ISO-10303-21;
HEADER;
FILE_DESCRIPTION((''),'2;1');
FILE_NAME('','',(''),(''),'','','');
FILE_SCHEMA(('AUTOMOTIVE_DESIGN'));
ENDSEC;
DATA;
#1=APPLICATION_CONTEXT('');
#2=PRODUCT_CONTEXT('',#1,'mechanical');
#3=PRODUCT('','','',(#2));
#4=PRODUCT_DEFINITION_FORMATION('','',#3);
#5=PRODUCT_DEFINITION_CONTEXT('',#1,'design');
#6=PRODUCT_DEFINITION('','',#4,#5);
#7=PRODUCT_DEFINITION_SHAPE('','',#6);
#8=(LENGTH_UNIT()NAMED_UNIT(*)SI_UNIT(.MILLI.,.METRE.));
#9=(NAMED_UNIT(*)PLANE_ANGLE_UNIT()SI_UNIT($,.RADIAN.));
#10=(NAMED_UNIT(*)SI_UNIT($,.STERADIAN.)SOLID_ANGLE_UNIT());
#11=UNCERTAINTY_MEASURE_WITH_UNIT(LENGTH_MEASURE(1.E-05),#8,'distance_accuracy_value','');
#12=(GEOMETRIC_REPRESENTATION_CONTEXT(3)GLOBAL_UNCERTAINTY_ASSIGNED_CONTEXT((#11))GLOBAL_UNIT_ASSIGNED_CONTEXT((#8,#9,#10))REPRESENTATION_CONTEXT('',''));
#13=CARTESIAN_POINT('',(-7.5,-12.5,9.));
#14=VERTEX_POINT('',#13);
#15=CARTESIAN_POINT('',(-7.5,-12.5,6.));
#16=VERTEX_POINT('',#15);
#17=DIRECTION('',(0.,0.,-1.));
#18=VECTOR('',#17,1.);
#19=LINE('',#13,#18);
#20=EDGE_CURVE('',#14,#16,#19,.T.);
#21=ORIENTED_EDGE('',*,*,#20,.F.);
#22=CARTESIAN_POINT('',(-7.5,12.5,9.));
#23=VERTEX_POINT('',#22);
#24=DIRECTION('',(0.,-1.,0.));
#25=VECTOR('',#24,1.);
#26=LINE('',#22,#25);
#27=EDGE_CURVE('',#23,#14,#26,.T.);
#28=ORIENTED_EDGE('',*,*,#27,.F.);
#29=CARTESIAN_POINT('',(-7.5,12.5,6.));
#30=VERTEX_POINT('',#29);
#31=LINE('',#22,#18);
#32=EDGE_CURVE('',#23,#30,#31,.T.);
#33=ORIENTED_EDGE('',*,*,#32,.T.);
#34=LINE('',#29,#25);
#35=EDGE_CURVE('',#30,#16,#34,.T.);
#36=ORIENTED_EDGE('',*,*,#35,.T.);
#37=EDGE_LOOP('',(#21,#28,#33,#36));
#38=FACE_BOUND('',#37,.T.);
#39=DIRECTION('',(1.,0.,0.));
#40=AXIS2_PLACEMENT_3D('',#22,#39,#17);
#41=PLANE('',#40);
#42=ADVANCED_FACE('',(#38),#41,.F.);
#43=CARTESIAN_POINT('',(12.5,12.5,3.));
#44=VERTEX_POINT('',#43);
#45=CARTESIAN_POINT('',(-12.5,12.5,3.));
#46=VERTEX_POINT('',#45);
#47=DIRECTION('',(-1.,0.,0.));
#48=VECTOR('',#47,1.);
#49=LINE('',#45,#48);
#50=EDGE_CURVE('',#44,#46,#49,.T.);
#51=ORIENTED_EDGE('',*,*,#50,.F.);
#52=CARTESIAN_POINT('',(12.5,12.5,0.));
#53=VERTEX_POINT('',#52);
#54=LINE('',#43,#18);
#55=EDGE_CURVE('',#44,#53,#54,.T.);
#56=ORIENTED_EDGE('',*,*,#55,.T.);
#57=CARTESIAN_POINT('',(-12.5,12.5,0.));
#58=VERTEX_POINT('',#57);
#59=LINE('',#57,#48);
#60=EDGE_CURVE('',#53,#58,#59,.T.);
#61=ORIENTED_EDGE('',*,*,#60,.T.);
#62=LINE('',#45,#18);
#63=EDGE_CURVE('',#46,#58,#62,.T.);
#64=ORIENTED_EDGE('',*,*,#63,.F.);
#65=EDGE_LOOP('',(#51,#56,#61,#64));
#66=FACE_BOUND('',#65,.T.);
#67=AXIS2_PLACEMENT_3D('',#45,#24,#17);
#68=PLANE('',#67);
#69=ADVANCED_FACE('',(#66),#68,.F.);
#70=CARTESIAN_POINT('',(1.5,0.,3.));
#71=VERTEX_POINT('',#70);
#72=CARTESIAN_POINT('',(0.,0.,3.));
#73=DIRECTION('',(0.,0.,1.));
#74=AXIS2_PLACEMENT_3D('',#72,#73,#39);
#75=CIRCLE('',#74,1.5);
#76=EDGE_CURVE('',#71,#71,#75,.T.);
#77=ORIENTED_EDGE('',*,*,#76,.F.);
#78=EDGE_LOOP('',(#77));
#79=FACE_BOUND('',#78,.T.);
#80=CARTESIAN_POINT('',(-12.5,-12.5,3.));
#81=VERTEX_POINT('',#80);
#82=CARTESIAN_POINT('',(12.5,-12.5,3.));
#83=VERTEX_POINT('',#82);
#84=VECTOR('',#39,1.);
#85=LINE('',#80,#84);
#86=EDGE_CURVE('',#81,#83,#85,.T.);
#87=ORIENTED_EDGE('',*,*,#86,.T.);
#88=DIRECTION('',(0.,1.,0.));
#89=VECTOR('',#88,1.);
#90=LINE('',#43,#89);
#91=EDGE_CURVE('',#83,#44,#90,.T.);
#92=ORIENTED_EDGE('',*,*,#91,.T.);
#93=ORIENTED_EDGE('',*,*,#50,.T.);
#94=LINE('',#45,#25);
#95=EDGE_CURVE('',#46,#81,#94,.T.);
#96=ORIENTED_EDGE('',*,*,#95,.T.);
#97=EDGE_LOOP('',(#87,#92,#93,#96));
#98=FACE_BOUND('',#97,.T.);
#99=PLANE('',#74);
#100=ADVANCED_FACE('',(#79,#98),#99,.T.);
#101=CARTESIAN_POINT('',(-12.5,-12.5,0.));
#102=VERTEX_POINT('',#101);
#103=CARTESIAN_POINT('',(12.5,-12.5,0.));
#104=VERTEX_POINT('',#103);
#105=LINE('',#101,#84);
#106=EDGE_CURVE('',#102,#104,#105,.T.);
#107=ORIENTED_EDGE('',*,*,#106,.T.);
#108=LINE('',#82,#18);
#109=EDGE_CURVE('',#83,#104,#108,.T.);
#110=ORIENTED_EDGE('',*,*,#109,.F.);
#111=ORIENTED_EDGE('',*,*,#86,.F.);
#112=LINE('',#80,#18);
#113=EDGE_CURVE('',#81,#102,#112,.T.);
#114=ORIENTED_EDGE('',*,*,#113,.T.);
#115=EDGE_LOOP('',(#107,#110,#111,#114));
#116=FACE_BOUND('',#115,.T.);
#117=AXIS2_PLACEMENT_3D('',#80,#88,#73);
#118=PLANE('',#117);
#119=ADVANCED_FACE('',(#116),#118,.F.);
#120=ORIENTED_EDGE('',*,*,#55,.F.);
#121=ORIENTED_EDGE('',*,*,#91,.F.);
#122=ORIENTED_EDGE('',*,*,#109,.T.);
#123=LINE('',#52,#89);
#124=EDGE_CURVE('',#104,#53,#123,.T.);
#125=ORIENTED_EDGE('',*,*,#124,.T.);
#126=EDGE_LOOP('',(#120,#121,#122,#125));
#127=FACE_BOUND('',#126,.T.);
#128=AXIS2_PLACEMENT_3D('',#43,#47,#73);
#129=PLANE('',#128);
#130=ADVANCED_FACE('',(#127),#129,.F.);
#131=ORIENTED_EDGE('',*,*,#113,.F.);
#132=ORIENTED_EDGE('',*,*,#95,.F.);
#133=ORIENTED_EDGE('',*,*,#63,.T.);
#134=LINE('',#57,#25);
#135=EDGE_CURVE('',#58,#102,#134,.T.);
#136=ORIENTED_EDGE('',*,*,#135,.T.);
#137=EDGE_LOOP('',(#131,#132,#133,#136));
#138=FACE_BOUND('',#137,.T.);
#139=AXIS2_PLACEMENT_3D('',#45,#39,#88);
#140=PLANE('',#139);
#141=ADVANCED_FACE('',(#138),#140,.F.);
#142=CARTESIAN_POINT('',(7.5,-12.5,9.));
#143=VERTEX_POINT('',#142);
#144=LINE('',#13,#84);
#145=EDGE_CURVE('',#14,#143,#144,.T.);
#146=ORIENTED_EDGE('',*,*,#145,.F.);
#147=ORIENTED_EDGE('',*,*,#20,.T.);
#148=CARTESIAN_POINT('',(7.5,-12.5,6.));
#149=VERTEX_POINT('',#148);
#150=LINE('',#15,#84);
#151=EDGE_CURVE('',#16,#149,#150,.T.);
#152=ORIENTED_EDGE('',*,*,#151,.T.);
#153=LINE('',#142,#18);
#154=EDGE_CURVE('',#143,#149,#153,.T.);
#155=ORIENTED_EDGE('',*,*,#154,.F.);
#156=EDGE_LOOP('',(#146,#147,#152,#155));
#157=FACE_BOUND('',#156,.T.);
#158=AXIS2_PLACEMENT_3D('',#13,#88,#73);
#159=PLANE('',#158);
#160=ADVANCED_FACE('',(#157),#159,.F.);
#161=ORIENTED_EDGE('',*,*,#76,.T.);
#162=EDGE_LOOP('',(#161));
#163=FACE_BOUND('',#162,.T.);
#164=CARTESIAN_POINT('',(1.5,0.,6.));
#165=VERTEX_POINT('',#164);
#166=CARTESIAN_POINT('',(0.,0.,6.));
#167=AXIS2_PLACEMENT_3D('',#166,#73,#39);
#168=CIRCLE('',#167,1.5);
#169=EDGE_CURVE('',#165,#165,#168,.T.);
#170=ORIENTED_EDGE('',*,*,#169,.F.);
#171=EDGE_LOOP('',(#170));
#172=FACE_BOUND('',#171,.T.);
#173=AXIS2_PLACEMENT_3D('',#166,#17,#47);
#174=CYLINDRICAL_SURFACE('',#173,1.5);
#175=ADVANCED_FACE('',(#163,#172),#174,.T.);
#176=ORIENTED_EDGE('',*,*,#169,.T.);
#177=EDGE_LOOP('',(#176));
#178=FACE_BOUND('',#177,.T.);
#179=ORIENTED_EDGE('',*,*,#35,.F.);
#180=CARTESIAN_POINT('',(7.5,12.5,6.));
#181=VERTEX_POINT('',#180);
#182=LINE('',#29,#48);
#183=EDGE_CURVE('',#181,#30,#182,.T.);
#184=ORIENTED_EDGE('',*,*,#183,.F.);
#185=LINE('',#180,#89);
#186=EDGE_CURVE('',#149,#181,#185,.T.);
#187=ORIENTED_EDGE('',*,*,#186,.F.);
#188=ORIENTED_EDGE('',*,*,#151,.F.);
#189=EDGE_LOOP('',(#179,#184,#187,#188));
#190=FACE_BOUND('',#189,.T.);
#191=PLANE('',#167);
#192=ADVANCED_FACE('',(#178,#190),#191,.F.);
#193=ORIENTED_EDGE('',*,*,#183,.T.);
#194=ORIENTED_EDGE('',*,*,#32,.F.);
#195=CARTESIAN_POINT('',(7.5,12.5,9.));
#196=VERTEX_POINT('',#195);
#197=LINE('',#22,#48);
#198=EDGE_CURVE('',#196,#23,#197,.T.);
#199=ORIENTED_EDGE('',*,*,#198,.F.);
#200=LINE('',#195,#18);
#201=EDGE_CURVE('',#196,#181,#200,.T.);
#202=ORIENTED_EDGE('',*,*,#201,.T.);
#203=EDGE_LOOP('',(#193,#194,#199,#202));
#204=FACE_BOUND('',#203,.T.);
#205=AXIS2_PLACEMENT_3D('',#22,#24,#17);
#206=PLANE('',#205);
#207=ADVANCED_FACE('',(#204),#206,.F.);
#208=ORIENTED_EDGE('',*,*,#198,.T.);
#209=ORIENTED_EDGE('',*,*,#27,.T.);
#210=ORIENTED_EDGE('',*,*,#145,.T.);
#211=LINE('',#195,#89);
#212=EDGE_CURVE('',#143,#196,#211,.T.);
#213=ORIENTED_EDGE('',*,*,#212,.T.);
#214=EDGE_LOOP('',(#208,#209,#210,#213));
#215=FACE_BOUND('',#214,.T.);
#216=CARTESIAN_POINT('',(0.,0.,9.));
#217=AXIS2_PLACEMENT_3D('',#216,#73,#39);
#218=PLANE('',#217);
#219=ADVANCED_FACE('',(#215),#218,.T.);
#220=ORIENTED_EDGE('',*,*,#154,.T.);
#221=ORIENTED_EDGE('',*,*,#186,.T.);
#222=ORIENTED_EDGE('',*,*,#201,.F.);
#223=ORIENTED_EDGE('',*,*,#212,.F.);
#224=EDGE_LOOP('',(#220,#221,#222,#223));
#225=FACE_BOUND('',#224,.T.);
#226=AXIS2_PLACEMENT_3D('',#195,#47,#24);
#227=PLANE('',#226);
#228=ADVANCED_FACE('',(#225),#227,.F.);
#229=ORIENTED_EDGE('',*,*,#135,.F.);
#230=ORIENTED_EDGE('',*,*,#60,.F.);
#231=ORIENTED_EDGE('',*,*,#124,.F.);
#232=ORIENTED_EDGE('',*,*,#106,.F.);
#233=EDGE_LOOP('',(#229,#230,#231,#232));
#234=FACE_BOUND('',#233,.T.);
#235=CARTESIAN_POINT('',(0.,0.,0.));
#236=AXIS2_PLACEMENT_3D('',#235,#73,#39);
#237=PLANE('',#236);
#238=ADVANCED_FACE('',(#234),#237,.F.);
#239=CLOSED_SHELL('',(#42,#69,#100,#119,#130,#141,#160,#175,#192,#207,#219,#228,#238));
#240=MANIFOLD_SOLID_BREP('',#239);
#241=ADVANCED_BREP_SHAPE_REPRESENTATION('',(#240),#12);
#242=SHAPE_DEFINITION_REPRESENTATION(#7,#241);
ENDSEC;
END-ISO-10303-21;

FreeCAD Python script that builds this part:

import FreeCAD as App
import Part
import Sketcher
Q = App.Units.Quantity


def add_polygon(sketch, points):
    """Adds a closed chain of lines whose ends are joined by coincident constraints."""
    first, n = sketch.GeometryCount, len(points)
    for a, b in zip(points, points[1:] + points[:1]):
        sketch.addGeometry(Part.LineSegment(App.Vector(*a, 0), App.Vector(*b, 0)), False)
    for i in range(n):
        sketch.addConstraint(Sketcher.Constraint("Coincident", first + i, 2, first + (i + 1) % n, 1))

doc = App.newDocument("Part")
body = doc.addObject("PartDesign::Body", "Body")

# Sketch on XY plane
sketch1 = doc.addObject("Sketcher::SketchObject", "Sketch")
body.addObject(sketch1)
sketch1.AttachmentSupport = (doc.XY_Plane, [""])
sketch1.MapMode = "FlatFace"
add_polygon(sketch1, [(-12, 12), (-12, -12), (12, -12), (12, 12)])  # lines 0-3
sketch1.addConstraint([
    Sketcher.Constraint("Vertical", 0),
    Sketcher.Constraint("Horizontal", 1),
    Sketcher.Constraint("Vertical", 2),
    Sketcher.Constraint("Horizontal", 3),
    Sketcher.Constraint("Symmetric", 0, 2, 2, 2, -1, 1),
    Sketcher.Constraint("Equal", 3, 0),
    Sketcher.Constraint("DistanceX", 1, 1, 1, 2, Q("25 mm")),
])
pad1 = doc.addObject("PartDesign::Pad", "Pad")
body.addObject(pad1)
pad1.Profile = sketch1
pad1.Length = 3

# Sketch on XY plane
sketch2 = doc.addObject("Sketcher::SketchObject", "Sketch001")
body.addObject(sketch2)
sketch2.AttachmentSupport = (doc.XY_Plane, [""])
sketch2.MapMode = "FlatFace"
sketch2.AttachmentOffset = App.Placement(App.Vector(0, 0, 3), App.Rotation())
sketch2.addGeometry(Part.Circle(App.Vector(0, 0, 0), App.Vector(0, 0, 1), 1.5), False)
sketch2.addConstraint([
    Sketcher.Constraint("Coincident", 0, 3, -1, 1),
    Sketcher.Constraint("Diameter", 0, Q("3 mm")),
])
pad2 = doc.addObject("PartDesign::Pad", "Pad001")
body.addObject(pad2)
pad2.Profile = sketch2
pad2.Length = 3

# Sketch on XY plane
sketch3 = doc.addObject("Sketcher::SketchObject", "Sketch002")
body.addObject(sketch3)
sketch3.AttachmentSupport = (doc.XY_Plane, [""])
sketch3.MapMode = "FlatFace"
sketch3.AttachmentOffset = App.Placement(App.Vector(0, 0, 6), App.Rotation())
add_polygon(sketch3, [(-8, 12), (-8, -12), (8, -12), (8, 12)])  # lines 0-3
sketch3.addConstraint([
    Sketcher.Constraint("Vertical", 0),
    Sketcher.Constraint("Horizontal", 1),
    Sketcher.Constraint("Vertical", 2),
    Sketcher.Constraint("Horizontal", 3),
    Sketcher.Constraint("Symmetric", 0, 2, 2, 2, -1, 1),
    Sketcher.Constraint("DistanceX", 1, 1, 1, 2, Q("15 mm")),
    Sketcher.Constraint("DistanceY", 0, 2, 0, 1, Q("25 mm")),
])
pad3 = doc.addObject("PartDesign::Pad", "Pad002")
body.addObject(pad3)
pad3.Profile = sketch3
pad3.Length = 3

doc.recompute()
